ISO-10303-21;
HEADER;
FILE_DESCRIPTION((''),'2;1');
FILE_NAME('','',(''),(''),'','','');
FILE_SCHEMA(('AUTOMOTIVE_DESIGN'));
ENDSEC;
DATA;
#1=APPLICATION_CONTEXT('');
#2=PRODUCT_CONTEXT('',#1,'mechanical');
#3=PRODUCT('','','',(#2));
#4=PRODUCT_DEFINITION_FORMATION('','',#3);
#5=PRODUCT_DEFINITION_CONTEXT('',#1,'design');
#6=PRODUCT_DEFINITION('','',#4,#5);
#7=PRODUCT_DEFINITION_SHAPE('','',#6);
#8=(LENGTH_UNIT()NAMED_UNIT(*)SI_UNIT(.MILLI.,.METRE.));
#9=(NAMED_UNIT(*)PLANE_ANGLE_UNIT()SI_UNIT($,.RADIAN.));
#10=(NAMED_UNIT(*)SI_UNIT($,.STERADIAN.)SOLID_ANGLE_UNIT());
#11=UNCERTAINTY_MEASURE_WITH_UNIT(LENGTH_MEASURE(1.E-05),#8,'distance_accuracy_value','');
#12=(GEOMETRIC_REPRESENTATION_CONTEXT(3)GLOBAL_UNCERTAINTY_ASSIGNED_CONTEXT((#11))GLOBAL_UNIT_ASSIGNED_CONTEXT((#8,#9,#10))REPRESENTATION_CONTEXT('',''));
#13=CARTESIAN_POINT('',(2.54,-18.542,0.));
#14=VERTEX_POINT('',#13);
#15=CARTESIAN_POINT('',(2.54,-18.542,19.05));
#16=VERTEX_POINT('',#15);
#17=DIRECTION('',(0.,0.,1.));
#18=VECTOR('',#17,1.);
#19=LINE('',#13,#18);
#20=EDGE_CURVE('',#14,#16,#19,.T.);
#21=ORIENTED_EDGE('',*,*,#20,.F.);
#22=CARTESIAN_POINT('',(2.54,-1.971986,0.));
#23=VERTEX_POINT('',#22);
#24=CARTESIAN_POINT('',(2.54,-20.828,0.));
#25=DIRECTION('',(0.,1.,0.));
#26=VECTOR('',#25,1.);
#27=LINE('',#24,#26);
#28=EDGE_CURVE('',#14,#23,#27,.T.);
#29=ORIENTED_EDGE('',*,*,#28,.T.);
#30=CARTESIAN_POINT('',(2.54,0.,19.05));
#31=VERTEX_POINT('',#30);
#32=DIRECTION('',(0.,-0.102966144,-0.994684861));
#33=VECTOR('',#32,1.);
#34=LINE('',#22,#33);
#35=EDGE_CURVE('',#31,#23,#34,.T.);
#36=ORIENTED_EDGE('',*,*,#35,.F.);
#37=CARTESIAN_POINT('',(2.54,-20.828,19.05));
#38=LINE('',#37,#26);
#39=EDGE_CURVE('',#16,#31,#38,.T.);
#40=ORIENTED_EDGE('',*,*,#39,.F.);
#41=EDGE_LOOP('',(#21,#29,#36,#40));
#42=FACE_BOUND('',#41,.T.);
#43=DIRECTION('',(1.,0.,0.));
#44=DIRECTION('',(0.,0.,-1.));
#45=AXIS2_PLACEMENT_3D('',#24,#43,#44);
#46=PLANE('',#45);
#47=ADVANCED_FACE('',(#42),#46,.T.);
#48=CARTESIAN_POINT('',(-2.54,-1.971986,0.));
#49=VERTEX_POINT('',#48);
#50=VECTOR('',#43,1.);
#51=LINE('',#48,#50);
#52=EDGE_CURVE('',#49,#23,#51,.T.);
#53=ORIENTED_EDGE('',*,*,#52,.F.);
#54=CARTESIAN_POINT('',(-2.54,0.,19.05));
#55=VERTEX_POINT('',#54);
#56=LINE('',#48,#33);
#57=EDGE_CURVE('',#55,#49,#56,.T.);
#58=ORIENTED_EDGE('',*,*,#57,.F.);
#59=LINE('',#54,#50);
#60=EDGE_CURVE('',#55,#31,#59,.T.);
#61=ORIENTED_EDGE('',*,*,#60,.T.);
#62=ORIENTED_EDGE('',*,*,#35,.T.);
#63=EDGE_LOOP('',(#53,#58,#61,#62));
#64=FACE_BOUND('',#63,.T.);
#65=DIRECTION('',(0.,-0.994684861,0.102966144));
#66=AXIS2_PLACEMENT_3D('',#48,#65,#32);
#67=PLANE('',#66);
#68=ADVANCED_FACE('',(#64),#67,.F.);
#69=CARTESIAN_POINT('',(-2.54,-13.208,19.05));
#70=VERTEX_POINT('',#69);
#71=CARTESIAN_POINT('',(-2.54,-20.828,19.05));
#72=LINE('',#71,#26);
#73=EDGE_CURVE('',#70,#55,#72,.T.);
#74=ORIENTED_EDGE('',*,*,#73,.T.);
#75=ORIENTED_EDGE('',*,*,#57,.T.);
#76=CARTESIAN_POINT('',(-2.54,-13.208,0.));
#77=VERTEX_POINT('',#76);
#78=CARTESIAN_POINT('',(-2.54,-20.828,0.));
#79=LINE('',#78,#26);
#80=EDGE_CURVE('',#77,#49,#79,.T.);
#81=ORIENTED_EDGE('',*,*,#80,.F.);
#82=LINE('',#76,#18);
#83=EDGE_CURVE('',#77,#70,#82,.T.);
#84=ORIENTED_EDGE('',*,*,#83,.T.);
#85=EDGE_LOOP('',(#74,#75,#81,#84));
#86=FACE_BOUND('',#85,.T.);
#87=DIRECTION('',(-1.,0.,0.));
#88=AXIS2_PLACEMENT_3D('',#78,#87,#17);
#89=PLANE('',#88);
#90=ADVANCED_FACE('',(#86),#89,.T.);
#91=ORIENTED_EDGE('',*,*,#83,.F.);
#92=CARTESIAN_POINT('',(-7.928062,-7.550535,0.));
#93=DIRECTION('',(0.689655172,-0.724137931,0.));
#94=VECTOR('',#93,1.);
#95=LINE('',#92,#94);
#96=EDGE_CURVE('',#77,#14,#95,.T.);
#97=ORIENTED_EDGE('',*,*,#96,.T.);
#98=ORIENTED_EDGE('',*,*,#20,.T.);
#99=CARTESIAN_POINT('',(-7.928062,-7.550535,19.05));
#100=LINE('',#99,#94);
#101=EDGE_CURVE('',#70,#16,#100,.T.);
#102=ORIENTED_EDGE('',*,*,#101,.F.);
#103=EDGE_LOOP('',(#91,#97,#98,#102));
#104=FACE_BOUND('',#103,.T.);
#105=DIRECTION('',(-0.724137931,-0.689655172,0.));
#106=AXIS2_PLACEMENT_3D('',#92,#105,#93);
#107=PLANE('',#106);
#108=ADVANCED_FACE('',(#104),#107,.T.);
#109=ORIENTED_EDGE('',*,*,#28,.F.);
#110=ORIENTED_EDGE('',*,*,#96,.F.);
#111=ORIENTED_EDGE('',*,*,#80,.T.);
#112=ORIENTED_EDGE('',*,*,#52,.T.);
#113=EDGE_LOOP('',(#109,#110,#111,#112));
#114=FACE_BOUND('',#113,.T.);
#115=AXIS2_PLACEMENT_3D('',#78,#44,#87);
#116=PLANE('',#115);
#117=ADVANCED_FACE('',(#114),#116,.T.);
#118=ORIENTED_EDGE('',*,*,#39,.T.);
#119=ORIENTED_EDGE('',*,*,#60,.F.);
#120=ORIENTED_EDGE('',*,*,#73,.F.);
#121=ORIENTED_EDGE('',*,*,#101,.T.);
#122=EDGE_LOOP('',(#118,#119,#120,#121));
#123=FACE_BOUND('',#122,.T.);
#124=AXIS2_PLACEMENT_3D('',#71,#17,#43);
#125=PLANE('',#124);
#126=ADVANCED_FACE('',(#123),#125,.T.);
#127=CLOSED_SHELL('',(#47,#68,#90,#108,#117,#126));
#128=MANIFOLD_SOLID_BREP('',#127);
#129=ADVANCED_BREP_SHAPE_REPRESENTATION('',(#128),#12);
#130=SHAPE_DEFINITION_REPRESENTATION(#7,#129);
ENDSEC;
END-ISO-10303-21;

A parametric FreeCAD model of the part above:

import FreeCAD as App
import Part
import Sketcher

V = App.Vector
Q = App.Units.Quantity

doc = App.newDocument("Part")
body = doc.addObject("PartDesign::Body", "Body")

# Sketch on XZ plane
sketch1 = doc.addObject("Sketcher::SketchObject", "Sketch")
body.addObject(sketch1)
sketch1.AttachmentSupport = (doc.XZ_Plane, [""])
sketch1.MapMode = "FlatFace"
sketch1.addGeometry(Part.LineSegment(V(-3, 0, 0), V(-3, 19, 0)), False)
sketch1.addGeometry(Part.LineSegment(V(-3, 19, 0), V(3, 19, 0)), False)
sketch1.addGeometry(Part.LineSegment(V(3, 19, 0), V(3, 0, 0)), False)
sketch1.addGeometry(Part.LineSegment(V(3, 0, 0), V(-3, 0, 0)), False)
sketch1.addConstraint(Sketcher.Constraint("Coincident", 0, 2, 1, 1))
sketch1.addConstraint(Sketcher.Constraint("Coincident", 1, 2, 2, 1))
sketch1.addConstraint(Sketcher.Constraint("Coincident", 2, 2, 3, 1))
sketch1.addConstraint(Sketcher.Constraint("Coincident", 3, 2, 0, 1))
sketch1.addConstraint(Sketcher.Constraint("Vertical", 0))
sketch1.addConstraint(Sketcher.Constraint("Horizontal", 1))
sketch1.addConstraint(Sketcher.Constraint("Vertical", 2))
sketch1.addConstraint(Sketcher.Constraint("Horizontal", 3))
sketch1.addConstraint(Sketcher.Constraint("Symmetric", 2, 2, 3, 2, -1, 1))
sketch1.addConstraint(Sketcher.Constraint("DistanceX", 1, 1, 1, 2, Q("0.2 in")))
sketch1.addConstraint(Sketcher.Constraint("DistanceY", 0, 1, 0, 2, Q("0.75 in")))
pad1 = doc.addObject("PartDesign::Pad", "Pad")
body.addObject(pad1)
pad1.Profile = sketch1
pad1.Length = Q("0.82 in")

# Sketch on YZ plane
sketch2 = doc.addObject("Sketcher::SketchObject", "Sketch001")
body.addObject(sketch2)
sketch2.AttachmentSupport = (doc.YZ_Plane, [""])
sketch2.MapMode = "FlatFace"
sketch2.AttachmentOffset = App.Placement(V(0, 0, 0.1 * 25.4), App.Rotation())
sketch2.addGeometry(Part.LineSegment(V(0, 19.1, 0), V(-2, 0, 0)), False)
sketch2.addGeometry(Part.LineSegment(V(-2, 0, 0), V(0, 0, 0)), False)
sketch2.addGeometry(Part.LineSegment(V(0, 0, 0), V(0, 19.1, 0)), False)
sketch2.addConstraint(Sketcher.Constraint("Coincident", 0, 2, 1, 1))
sketch2.addConstraint(Sketcher.Constraint("Coincident", 1, 2, 2, 1))
sketch2.addConstraint(Sketcher.Constraint("Coincident", 2, 2, 0, 1))
sketch2.addConstraint(Sketcher.Constraint("Horizontal", 1))
sketch2.addConstraint(Sketcher.Constraint("Vertical", 2))
sketch2.addConstraint(Sketcher.Constraint("Coincident", 1, 2, -1, 1))
sketch2.addConstraint(Sketcher.Constraint("DistanceY", 2, 1, 2, 2, Q("0.75 in")))
sketch2.addConstraint(Sketcher.Constraint("Angle", 0, Q("-95.91 deg")))
pocket1 = doc.addObject("PartDesign::Pocket", "Pocket")
body.addObject(pocket1)
pocket1.Profile = sketch2
pocket1.Type = "ThroughAll"

# Sketch on XY plane
sketch3 = doc.addObject("Sketcher::SketchObject", "Sketch002")
body.addObject(sketch3)
sketch3.AttachmentSupport = (doc.XY_Plane, [""])
sketch3.MapMode = "FlatFace"
sketch3.AttachmentOffset = App.Placement(V(0, 0, 0.75 * 25.4), App.Rotation())
sketch3.addGeometry(Part.LineSegment(V(-2.5, -13.2, 0), V(-2.5, -20.8, 0)), False)
sketch3.addGeometry(Part.LineSegment(V(-2.5, -20.8, 0), V(2.5, -20.8, 0)), False)
sketch3.addGeometry(Part.LineSegment(V(2.5, -20.8, 0), V(2.5, -18.5, 0)), False)
sketch3.addGeometry(Part.LineSegment(V(2.5, -18.5, 0), V(-2.5, -13.2, 0)), False)
sketch3.addConstraint(Sketcher.Constraint("Coincident", 0, 2, 1, 1))
sketch3.addConstraint(Sketcher.Constraint("Coincident", 1, 2, 2, 1))
sketch3.addConstraint(Sketcher.Constraint("Coincident", 2, 2, 3, 1))
sketch3.addConstraint(Sketcher.Constraint("Coincident", 3, 2, 0, 1))
sketch3.addConstraint(Sketcher.Constraint("Vertical", 0))
sketch3.addConstraint(Sketcher.Constraint("Horizontal", 1))
sketch3.addConstraint(Sketcher.Constraint("Vertical", 2))
sketch3.addConstraint(Sketcher.Constraint("DistanceX", 1, 1, 1, 2, Q("0.2 in")))
sketch3.addConstraint(Sketcher.Constraint("DistanceY", 0, 2, 0, 1, Q("0.3 in")))
sketch3.addConstraint(Sketcher.Constraint("DistanceY", 2, 1, 2, 2, Q("0.09 in")))
sketch3.addConstraint(Sketcher.Constraint("DistanceX", 0, 2, -1, 1, Q("0.1 in")))
sketch3.addConstraint(Sketcher.Constraint("DistanceY", 0, 2, -1, 1, Q("0.82 in")))
pocket2 = doc.addObject("PartDesign::Pocket", "Pocket001")
body.addObject(pocket2)
pocket2.Profile = sketch3
pocket2.Type = "ThroughAll"

doc.recompute()
